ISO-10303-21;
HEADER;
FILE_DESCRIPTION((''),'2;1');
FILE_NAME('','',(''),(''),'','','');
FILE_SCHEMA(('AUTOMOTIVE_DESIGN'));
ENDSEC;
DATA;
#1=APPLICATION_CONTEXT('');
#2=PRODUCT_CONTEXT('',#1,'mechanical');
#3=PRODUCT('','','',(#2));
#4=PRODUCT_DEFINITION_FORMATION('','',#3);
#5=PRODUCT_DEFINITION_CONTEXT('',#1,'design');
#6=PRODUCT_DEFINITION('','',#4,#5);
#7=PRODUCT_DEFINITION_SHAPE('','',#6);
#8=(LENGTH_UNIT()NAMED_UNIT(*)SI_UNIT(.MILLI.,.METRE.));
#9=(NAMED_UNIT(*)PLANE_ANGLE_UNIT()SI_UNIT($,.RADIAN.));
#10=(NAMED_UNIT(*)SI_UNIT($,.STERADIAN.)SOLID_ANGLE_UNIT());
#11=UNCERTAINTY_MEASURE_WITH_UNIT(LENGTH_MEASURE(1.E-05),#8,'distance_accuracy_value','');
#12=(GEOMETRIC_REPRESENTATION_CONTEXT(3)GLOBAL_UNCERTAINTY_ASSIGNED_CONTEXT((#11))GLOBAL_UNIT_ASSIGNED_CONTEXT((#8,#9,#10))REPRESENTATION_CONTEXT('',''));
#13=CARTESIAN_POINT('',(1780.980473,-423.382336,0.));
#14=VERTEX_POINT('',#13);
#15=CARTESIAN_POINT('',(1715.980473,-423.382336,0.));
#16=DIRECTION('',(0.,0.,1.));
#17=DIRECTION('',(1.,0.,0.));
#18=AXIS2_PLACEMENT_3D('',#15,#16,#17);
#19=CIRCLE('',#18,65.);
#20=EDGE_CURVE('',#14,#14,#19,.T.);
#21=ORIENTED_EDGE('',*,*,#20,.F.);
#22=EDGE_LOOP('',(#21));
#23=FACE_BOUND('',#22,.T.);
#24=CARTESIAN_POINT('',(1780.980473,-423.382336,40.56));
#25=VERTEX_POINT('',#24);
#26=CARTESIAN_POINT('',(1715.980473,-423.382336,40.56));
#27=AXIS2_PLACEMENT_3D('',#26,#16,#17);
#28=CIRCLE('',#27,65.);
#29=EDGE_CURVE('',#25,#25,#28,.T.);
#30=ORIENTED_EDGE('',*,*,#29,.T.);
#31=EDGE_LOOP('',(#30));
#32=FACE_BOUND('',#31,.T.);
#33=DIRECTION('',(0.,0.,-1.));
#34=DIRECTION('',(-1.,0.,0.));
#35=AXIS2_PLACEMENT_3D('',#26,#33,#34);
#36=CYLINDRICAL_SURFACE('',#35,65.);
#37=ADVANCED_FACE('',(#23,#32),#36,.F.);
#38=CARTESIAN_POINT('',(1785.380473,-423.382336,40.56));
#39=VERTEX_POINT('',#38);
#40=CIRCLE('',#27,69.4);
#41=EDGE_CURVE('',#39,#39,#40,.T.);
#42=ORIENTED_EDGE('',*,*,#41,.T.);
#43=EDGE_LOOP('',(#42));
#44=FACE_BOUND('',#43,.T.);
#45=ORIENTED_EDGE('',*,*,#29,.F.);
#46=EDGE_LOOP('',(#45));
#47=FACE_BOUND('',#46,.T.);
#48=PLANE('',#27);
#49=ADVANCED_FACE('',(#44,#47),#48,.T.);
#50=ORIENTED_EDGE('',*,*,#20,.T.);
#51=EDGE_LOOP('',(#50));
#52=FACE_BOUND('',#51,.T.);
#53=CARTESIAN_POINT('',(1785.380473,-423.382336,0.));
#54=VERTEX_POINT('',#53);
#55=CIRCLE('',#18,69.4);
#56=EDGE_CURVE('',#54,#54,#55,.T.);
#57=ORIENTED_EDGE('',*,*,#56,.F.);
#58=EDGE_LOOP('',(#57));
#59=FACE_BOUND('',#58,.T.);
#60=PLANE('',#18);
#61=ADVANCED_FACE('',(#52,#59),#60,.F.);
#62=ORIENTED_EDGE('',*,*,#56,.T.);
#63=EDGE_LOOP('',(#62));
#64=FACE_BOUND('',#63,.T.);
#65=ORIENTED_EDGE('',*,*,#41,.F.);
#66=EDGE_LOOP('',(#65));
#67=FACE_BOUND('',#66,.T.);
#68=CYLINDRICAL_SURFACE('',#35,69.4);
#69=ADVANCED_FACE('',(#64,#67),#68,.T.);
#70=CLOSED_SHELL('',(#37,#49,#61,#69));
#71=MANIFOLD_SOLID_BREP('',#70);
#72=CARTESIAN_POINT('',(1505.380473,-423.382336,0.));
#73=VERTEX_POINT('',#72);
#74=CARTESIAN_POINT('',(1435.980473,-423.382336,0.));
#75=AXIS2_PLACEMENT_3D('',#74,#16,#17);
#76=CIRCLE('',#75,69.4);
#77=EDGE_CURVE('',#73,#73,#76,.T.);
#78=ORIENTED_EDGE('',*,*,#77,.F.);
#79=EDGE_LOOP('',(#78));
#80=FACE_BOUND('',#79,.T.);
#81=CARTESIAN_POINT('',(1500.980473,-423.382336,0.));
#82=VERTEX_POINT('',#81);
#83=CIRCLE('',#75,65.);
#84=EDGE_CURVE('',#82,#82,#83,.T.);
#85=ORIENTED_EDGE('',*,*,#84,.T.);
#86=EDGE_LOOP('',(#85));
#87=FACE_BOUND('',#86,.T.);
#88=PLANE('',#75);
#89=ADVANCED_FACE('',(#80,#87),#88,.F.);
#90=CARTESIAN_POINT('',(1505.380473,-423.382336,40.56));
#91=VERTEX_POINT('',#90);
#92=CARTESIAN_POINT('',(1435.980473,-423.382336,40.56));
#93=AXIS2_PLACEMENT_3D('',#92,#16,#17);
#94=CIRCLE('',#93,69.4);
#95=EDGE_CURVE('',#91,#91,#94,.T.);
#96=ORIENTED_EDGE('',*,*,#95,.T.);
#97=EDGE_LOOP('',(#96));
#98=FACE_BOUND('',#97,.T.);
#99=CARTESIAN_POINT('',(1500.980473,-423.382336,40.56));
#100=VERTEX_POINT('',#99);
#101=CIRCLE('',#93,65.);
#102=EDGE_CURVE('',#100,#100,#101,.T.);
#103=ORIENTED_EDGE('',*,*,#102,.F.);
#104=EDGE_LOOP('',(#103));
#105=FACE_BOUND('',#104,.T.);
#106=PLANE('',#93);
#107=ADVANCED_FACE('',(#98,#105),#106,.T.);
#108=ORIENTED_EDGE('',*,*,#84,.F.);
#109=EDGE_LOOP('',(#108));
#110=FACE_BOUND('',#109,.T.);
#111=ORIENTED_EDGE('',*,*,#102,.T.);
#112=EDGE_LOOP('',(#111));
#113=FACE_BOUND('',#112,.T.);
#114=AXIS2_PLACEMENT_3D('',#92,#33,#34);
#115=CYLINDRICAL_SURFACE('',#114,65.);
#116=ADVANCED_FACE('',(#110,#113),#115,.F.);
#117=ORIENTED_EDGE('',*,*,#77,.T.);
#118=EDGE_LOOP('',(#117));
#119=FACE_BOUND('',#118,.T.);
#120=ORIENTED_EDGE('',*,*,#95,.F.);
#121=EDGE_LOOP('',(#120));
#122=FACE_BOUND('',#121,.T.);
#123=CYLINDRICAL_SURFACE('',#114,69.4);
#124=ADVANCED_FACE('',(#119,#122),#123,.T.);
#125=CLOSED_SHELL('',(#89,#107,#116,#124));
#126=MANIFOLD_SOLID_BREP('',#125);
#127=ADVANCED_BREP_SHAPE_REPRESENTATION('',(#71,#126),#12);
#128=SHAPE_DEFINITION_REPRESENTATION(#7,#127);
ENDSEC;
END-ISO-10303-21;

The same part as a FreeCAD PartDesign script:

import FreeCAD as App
import Part
import Sketcher

V = App.Vector

doc = App.newDocument("Part")
params = doc.addObject("Spreadsheet::Sheet", "Params")
for row, (alias, value) in enumerate([
    ("sketch1_diameter", "130 mm"),
    ("sketch1_diameter2", "138.8 mm"),
    ("pad1_length", "40.56 mm"),
    ("sketch2_diameter", "130 mm"),
    ("sketch2_diameter2", "138.8 mm"),
    ("pad2_length", "40.56 mm"),
], start=1):
    params.set(f"A{row}", alias)
    params.set(f"B{row}", "=" + value)
    params.setAlias(f"B{row}", alias)

body = doc.addObject("PartDesign::Body", "Body")

# Sketch on XY plane
sketch1 = doc.addObject("Sketcher::SketchObject", "Sketch")
body.addObject(sketch1)
sketch1.AttachmentSupport = (doc.XY_Plane, [""])
sketch1.MapMode = "FlatFace"
sketch1.addGeometry([
    Part.Circle(V(1436, -423, 0), V(0, 0, 1), 69),
    Part.Circle(V(1436, -423, 0), V(0, 0, 1), 65),
], False)
sketch1.addConstraint([
    Sketcher.Constraint("Coincident", 1, 3, 0, 3),
    Sketcher.Constraint("Diameter", 1, 130.0),
    Sketcher.Constraint("Diameter", 0, 138.8),
    Sketcher.Constraint("DistanceX", -1, 1, 0, 3, 1435.980473),
    Sketcher.Constraint("DistanceY", 0, 3, -1, 1, 423.382336),
])
sketch1.setExpression("Constraints[1]", "Params.sketch1_diameter")
sketch1.setExpression("Constraints[2]", "Params.sketch1_diameter2")
pad1 = doc.addObject("PartDesign::Pad", "Pad")
body.addObject(pad1)
pad1.Profile = sketch1
pad1.setExpression("Length", "Params.pad1_length")
body2 = doc.addObject("PartDesign::Body", "Body001")

# Sketch on XY plane
sketch2 = doc.addObject("Sketcher::SketchObject", "Sketch001")
body2.addObject(sketch2)
sketch2.AttachmentSupport = (doc.getObject("XY_Plane001"), [""])
sketch2.MapMode = "FlatFace"
sketch2.addGeometry([
    Part.Circle(V(1716, -423, 0), V(0, 0, 1), 69),
    Part.Circle(V(1716, -423, 0), V(0, 0, 1), 65),
], False)
sketch2.addConstraint([
    Sketcher.Constraint("Coincident", 1, 3, 0, 3),
    Sketcher.Constraint("Diameter", 1, 130.0),
    Sketcher.Constraint("Diameter", 0, 138.8),
    Sketcher.Constraint("DistanceX", -1, 1, 0, 3, 1715.980473),
    Sketcher.Constraint("DistanceY", 0, 3, -1, 1, 423.382336),
])
sketch2.setExpression("Constraints[1]", "Params.sketch2_diameter")
sketch2.setExpression("Constraints[2]", "Params.sketch2_diameter2")
pad2 = doc.addObject("PartDesign::Pad", "Pad001")
body2.addObject(pad2)
pad2.Profile = sketch2
pad2.setExpression("Length", "Params.pad2_length")

doc.recompute()
